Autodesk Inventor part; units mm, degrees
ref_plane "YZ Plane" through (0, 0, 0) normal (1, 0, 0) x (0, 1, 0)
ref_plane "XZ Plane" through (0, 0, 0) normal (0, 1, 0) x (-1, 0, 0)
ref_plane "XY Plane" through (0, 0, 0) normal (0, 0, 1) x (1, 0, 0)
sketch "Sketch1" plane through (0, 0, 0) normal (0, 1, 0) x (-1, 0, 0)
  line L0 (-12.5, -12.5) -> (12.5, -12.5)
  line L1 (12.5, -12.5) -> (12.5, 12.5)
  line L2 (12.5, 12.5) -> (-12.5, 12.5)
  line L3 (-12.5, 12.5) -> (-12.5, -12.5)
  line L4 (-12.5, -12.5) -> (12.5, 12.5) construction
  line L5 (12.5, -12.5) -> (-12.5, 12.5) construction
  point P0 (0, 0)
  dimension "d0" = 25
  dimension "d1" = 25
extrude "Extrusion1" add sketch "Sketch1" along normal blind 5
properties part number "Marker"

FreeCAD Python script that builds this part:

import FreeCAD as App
import Part
import Sketcher
from FreeCAD import Vector
Q = App.Units.Quantity

doc = App.newDocument("Part")
body = doc.addObject("PartDesign::Body", "Body")

# Sketch on XZ plane
sketch1 = body.newObject("Sketcher::SketchObject", "Sketch")
sketch1.AttachmentSupport = (doc.getObject("XZ_Plane"), [""])
sketch1.MapMode = "FlatFace"
sketch1.addGeometry(Part.LineSegment(Vector(12, 12, 0), Vector(12, -12, 0)), False)
sketch1.addGeometry(Part.LineSegment(Vector(12, -12, 0), Vector(-12, -12, 0)), False)
sketch1.addGeometry(Part.LineSegment(Vector(-12, -12, 0), Vector(-12, 12, 0)), False)
sketch1.addGeometry(Part.LineSegment(Vector(-12, 12, 0), Vector(12, 12, 0)), False)
sketch1.addConstraint(Sketcher.Constraint("Coincident", 0, 2, 1, 1))
sketch1.addConstraint(Sketcher.Constraint("Coincident", 1, 2, 2, 1))
sketch1.addConstraint(Sketcher.Constraint("Coincident", 2, 2, 3, 1))
sketch1.addConstraint(Sketcher.Constraint("Coincident", 3, 2, 0, 1))
sketch1.addConstraint(Sketcher.Constraint("Vertical", 0))
sketch1.addConstraint(Sketcher.Constraint("Horizontal", 1))
sketch1.addConstraint(Sketcher.Constraint("Vertical", 2))
sketch1.addConstraint(Sketcher.Constraint("Horizontal", 3))
sketch1.addConstraint(Sketcher.Constraint("Symmetric", 0, 2, 2, 2, -1, 1))
sketch1.addConstraint(Sketcher.Constraint("Equal", 3, 0))
sketch1.addConstraint(Sketcher.Constraint("DistanceX", 1, 2, 1, 1, Q("25 mm")))
pad1 = body.newObject("PartDesign::Pad", "Pad")
pad1.Profile = sketch1
pad1.Length = 5
pad1.Reversed = True

doc.recompute()
